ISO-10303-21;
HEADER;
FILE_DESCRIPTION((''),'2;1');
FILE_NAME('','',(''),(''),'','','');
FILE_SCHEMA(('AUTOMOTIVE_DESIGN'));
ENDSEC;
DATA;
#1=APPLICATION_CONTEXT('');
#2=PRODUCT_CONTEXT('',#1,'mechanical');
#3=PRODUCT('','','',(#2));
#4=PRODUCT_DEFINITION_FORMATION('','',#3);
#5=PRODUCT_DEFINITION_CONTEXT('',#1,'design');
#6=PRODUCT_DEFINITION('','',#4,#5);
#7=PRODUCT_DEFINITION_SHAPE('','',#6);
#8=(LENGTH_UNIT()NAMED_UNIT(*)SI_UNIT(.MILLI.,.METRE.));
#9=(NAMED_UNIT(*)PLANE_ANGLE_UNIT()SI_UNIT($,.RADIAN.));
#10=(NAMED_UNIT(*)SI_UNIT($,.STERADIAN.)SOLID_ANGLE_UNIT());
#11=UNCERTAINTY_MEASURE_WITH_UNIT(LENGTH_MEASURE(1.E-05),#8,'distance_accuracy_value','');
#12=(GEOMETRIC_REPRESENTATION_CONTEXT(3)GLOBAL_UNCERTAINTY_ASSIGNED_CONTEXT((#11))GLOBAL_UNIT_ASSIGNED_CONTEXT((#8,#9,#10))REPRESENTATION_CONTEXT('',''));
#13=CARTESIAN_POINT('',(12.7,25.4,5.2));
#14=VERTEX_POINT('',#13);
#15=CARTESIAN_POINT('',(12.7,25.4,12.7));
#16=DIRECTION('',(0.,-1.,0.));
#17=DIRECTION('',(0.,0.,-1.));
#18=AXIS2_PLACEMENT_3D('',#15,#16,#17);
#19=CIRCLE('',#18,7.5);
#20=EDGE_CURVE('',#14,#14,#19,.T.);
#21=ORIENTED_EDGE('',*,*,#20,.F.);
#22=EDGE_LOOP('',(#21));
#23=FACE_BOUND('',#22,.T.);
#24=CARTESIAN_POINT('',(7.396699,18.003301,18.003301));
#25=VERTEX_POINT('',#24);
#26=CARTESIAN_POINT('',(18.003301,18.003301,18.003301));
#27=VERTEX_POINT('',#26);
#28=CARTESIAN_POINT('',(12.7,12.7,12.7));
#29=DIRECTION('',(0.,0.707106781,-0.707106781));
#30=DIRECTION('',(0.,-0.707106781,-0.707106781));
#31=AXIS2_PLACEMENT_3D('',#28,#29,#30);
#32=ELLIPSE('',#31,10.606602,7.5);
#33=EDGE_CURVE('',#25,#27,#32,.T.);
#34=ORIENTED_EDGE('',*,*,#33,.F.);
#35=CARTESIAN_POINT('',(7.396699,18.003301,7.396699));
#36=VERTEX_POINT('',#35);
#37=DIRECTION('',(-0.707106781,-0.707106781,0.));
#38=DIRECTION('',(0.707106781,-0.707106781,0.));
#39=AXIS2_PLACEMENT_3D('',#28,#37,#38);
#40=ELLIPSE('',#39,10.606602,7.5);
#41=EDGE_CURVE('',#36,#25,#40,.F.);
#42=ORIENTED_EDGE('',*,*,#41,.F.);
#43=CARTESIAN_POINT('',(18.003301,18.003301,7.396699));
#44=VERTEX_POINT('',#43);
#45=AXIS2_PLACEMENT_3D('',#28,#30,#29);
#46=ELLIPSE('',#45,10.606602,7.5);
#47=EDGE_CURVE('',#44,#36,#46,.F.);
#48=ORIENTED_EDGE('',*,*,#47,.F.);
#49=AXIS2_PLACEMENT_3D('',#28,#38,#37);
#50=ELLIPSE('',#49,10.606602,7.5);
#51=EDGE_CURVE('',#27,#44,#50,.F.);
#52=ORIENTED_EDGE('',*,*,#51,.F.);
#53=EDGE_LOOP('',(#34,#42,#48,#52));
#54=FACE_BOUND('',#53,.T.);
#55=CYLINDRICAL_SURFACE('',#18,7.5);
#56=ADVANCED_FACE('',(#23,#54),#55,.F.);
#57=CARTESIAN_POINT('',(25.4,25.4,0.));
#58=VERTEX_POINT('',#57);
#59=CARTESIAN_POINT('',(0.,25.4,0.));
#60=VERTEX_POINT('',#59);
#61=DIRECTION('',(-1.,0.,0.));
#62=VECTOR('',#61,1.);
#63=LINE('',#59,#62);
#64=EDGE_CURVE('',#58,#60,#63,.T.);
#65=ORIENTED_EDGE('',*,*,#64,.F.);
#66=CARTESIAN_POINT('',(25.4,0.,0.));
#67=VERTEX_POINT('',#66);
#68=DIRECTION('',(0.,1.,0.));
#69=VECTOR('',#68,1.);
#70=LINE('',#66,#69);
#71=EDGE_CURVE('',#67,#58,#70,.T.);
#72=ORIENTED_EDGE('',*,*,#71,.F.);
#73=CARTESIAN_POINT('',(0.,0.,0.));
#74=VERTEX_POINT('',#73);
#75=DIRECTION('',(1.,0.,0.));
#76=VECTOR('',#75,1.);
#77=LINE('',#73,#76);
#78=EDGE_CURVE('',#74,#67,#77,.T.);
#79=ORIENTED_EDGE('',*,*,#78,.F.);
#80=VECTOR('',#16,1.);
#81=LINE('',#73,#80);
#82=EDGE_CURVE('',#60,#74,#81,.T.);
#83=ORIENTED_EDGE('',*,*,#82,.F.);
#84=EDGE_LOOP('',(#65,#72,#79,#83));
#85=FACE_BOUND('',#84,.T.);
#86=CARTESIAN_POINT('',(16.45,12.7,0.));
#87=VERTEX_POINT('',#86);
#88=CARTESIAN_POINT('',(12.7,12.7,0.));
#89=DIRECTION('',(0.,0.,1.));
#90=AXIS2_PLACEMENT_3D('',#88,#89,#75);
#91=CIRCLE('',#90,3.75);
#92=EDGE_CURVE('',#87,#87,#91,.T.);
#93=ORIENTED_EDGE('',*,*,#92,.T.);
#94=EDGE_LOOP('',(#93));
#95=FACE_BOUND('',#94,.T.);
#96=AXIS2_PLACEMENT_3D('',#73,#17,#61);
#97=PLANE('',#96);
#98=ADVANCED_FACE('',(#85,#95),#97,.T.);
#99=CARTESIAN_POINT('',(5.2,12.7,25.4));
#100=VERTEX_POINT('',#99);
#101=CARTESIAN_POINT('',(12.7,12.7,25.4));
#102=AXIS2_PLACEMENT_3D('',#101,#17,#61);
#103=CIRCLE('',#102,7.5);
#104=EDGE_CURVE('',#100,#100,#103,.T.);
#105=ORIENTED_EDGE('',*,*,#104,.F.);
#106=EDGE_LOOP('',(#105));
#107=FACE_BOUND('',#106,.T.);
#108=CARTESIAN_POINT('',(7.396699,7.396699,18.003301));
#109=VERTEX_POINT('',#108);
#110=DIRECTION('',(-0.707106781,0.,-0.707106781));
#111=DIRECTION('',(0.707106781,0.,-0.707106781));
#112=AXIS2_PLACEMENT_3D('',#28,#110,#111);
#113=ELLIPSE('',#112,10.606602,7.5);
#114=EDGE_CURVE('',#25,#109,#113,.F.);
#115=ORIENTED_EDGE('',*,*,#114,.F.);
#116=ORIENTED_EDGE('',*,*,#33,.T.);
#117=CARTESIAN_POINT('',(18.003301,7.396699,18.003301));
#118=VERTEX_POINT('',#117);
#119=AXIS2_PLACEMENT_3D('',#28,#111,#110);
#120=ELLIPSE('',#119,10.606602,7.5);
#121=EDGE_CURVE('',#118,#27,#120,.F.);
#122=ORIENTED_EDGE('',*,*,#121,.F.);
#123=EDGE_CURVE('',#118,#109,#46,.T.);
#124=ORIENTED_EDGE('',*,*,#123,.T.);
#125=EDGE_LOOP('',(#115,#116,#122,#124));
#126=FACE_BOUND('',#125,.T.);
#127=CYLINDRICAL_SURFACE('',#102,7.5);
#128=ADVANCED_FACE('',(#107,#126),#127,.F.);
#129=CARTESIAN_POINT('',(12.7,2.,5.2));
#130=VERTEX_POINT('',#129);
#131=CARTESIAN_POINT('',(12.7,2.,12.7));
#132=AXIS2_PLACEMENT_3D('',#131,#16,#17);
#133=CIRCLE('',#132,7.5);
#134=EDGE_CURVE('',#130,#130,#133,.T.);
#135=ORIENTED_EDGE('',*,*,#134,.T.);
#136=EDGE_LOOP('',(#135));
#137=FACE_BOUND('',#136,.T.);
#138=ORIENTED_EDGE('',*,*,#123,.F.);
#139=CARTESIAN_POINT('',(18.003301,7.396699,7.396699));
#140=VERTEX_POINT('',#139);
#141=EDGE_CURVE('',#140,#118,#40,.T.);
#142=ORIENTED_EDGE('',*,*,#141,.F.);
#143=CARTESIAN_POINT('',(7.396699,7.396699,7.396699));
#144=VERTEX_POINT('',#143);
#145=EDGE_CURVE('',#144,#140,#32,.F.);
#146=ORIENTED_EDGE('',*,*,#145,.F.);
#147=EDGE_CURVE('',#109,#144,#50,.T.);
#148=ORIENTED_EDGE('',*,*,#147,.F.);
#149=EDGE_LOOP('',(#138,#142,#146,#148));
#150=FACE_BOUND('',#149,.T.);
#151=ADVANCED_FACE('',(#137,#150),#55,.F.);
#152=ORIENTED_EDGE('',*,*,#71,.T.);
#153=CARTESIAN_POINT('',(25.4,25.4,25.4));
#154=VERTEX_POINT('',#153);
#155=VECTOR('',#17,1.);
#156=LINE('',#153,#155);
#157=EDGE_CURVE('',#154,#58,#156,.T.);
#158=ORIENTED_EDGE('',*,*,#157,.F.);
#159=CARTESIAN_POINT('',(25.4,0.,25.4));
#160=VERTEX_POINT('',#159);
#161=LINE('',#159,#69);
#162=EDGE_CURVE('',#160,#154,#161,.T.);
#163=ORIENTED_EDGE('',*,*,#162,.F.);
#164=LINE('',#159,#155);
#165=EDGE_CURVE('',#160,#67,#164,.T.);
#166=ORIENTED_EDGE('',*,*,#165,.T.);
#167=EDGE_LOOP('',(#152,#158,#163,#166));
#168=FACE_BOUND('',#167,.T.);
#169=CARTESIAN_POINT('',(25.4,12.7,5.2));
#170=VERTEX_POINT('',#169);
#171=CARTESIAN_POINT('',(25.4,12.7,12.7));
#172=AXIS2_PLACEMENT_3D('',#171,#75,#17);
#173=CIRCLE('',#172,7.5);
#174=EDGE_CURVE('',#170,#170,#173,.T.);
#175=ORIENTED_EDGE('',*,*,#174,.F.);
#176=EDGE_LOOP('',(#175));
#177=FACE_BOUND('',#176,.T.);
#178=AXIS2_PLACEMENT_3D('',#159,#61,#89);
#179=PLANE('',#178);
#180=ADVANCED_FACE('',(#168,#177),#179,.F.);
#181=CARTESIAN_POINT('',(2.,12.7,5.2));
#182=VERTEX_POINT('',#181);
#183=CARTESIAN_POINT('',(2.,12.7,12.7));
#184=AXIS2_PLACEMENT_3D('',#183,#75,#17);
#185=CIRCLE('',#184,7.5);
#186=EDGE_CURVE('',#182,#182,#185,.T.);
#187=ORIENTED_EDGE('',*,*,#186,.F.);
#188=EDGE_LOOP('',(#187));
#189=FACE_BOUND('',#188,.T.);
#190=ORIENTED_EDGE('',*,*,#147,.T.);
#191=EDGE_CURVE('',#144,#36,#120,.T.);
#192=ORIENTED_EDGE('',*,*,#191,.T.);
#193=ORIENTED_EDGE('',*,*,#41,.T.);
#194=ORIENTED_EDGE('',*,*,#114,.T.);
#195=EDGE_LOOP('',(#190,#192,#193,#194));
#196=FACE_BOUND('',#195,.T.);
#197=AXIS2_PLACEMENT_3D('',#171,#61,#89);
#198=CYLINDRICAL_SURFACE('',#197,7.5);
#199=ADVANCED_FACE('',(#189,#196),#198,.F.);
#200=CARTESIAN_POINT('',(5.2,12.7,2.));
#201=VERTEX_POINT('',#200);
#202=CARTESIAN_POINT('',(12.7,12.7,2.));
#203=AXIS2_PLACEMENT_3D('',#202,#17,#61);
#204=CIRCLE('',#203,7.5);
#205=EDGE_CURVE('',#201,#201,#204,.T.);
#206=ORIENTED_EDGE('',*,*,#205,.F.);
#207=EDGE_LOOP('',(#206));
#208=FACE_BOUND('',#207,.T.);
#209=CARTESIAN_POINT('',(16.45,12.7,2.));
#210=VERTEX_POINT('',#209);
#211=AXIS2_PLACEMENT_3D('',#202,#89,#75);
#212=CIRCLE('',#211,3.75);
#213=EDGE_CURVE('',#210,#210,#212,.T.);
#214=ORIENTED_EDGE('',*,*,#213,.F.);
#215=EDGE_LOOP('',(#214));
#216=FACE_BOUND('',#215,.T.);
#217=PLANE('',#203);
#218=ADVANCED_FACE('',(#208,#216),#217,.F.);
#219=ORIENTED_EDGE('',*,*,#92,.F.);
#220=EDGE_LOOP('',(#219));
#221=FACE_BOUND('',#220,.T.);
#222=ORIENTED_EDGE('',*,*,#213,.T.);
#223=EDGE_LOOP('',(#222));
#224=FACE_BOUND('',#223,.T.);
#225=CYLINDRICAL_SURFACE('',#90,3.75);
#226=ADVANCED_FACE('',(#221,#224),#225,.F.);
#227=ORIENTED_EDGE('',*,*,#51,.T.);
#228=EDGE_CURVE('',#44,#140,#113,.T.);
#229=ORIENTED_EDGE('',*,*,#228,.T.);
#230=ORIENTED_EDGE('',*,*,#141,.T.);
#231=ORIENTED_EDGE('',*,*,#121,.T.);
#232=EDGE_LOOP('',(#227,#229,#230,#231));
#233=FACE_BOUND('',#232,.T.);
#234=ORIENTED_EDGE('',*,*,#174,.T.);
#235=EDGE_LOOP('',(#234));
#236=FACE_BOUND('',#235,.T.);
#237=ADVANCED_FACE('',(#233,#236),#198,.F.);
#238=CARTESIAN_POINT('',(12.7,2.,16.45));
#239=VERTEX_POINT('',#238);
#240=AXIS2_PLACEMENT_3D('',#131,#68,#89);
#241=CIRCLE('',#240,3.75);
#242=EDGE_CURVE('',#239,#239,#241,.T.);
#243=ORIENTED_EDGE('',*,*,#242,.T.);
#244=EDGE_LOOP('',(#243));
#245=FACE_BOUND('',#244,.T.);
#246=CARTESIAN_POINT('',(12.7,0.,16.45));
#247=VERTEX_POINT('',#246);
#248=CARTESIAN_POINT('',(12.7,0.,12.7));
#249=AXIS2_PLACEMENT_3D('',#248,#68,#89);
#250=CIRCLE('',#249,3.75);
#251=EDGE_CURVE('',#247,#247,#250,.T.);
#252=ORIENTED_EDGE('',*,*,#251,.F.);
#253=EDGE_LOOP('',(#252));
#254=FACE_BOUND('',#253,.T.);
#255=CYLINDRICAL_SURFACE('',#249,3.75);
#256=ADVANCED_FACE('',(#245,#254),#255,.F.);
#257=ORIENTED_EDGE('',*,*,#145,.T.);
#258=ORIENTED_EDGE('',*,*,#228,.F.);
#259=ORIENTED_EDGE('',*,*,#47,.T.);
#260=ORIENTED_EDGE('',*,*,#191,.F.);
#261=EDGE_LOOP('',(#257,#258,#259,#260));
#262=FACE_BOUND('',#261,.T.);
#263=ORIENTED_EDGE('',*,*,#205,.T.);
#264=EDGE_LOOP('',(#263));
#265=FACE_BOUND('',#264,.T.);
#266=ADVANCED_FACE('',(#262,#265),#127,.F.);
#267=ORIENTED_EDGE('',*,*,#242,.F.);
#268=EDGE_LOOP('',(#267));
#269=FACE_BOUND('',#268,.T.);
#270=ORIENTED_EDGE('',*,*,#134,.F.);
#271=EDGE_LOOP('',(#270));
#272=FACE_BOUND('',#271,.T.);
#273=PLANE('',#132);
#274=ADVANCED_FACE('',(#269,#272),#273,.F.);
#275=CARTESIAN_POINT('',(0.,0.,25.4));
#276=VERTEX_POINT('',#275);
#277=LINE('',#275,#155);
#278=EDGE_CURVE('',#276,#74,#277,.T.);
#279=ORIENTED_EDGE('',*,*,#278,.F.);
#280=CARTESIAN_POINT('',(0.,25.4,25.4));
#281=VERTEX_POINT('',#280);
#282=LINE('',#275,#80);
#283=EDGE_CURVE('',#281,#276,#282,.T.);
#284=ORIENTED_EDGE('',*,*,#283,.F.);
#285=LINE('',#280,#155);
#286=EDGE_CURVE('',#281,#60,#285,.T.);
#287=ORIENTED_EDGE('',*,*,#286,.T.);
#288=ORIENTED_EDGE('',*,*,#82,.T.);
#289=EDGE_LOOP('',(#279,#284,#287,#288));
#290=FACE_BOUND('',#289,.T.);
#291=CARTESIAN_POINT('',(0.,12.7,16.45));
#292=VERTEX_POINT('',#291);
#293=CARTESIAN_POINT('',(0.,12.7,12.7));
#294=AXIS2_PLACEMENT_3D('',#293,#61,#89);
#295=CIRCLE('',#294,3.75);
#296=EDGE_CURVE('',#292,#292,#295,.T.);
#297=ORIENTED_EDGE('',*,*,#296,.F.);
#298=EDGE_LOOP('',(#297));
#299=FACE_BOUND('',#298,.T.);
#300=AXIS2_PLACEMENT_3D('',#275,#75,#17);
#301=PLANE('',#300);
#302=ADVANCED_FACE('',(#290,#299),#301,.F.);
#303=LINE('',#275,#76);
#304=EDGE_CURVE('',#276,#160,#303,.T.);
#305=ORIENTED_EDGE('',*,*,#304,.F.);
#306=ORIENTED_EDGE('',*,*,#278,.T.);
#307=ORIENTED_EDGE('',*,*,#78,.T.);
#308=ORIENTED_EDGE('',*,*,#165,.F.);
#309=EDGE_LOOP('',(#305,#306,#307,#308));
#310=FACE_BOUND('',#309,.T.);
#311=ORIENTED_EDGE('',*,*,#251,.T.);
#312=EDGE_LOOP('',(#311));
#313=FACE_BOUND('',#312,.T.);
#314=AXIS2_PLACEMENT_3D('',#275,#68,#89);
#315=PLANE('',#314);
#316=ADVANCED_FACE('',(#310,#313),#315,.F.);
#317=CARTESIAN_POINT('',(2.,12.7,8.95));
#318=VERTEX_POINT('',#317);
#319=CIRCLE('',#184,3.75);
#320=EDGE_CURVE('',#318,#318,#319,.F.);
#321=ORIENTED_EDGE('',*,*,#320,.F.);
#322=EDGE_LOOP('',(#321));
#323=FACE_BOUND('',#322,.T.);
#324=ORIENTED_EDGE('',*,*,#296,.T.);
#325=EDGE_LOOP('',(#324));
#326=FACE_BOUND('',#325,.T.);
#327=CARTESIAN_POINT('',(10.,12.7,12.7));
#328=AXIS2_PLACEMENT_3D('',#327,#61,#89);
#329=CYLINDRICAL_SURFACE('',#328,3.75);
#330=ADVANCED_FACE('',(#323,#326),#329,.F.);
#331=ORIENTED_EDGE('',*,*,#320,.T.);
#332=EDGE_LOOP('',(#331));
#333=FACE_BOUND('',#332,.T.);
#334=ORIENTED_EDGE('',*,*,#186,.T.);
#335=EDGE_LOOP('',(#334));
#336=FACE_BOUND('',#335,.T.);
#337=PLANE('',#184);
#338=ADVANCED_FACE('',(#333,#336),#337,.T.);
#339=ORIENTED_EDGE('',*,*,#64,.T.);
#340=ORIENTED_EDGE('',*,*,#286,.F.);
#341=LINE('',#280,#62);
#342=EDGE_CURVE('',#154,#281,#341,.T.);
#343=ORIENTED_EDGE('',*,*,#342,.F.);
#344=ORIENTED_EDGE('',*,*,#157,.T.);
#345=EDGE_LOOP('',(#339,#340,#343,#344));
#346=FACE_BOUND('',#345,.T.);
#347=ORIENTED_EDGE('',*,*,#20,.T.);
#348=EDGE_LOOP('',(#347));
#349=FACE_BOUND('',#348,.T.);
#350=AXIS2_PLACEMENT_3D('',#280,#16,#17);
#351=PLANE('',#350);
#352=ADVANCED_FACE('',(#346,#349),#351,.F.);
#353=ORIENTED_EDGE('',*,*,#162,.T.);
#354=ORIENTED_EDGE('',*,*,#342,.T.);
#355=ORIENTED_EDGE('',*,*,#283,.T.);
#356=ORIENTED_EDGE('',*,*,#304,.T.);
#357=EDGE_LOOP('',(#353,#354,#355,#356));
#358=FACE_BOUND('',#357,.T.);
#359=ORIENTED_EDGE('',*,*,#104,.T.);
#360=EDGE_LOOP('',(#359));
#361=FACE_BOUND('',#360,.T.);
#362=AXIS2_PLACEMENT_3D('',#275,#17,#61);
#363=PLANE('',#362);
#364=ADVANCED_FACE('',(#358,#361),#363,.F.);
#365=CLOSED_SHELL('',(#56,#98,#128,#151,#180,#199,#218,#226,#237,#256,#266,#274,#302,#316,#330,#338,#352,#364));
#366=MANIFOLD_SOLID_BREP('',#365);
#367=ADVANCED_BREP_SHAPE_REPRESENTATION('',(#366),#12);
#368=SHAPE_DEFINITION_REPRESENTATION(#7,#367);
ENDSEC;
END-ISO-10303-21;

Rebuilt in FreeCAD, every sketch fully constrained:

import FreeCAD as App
import Part
import Sketcher

V = App.Vector
Q = App.Units.Quantity

doc = App.newDocument("Part")
params = doc.addObject("Spreadsheet::Sheet", "Params")
for row, (alias, value) in enumerate([
    ("sketch1_width", "25.4 mm"),
    ("pad1_length", "25.4 mm"),
    ("sketch2_diameter", "15 mm"),
    ("sketch3_diameter", "15 mm"),
    ("sketch4_diameter", "7.5 mm"),
    ("sketch5_diameter", "7.5 mm"),
    ("sketch6_diameter", "7.5 mm"),
    ("pocket5_length", "10 mm"),
    ("sketch7_diameter", "15 mm"),
], start=1):
    params.set(f"A{row}", alias)
    params.set(f"B{row}", "=" + value)
    params.setAlias(f"B{row}", alias)

body = doc.addObject("PartDesign::Body", "Body")

# Sketch on XY plane
sketch1 = body.newObject("Sketcher::SketchObject", "Sketch")
sketch1.AttachmentSupport = (doc.getObject("XY_Plane"), [""])
sketch1.MapMode = "FlatFace"
sketch1.addGeometry(Part.LineSegment(V(0, 25.4, 0), V(0, 0, 0)), False)
sketch1.addGeometry(Part.LineSegment(V(0, 0, 0), V(25.4, 0, 0)), False)
sketch1.addGeometry(Part.LineSegment(V(25.4, 0, 0), V(25.4, 25.4, 0)), False)
sketch1.addGeometry(Part.LineSegment(V(25.4, 25.4, 0), V(0, 25.4, 0)), False)
sketch1.addConstraint(Sketcher.Constraint("Coincident", 0, 2, 1, 1))
sketch1.addConstraint(Sketcher.Constraint("Coincident", 1, 2, 2, 1))
sketch1.addConstraint(Sketcher.Constraint("Coincident", 2, 2, 3, 1))
sketch1.addConstraint(Sketcher.Constraint("Coincident", 3, 2, 0, 1))
sketch1.addConstraint(Sketcher.Constraint("Vertical", 0))
sketch1.addConstraint(Sketcher.Constraint("Horizontal", 1))
sketch1.addConstraint(Sketcher.Constraint("Vertical", 2))
sketch1.addConstraint(Sketcher.Constraint("Horizontal", 3))
sketch1.addConstraint(Sketcher.Constraint("Coincident", 0, 2, -1, 1))
sketch1.addConstraint(Sketcher.Constraint("Equal", 3, 0))
sketch1.addConstraint(Sketcher.Constraint("DistanceX", 1, 1, 1, 2, Q("25.4 mm")))
sketch1.setExpression("Constraints[10]", "Params.sketch1_width")
pad1 = body.newObject("PartDesign::Pad", "Pad")
pad1.Profile = sketch1
pad1.setExpression("Length", "Params.pad1_length")

# Sketch on XY plane
sketch2 = body.newObject("Sketcher::SketchObject", "Sketch001")
sketch2.AttachmentSupport = (doc.getObject("XY_Plane"), [""])
sketch2.MapMode = "FlatFace"
sketch2.AttachmentOffset = App.Placement(V(0, 0, 2), App.Rotation())
sketch2.addGeometry(Part.Circle(V(12.7, 12.7, 0), V(0, 0, 1), 7.5), False)
sketch2.addConstraint(Sketcher.Constraint("Diameter", 0, Q("15 mm")))
sketch2.addConstraint(Sketcher.Constraint("DistanceX", -1, 1, 0, 3, Q("12.7 mm")))
sketch2.addConstraint(Sketcher.Constraint("DistanceY", -1, 1, 0, 3, Q("12.7 mm")))
sketch2.setExpression("Constraints[0]", "Params.sketch2_diameter")
pocket1 = body.newObject("PartDesign::Pocket", "Pocket")
pocket1.Profile = sketch2
pocket1.Type = "ThroughAll"
pocket1.Reversed = True

# Sketch on XZ plane
sketch3 = body.newObject("Sketcher::SketchObject", "Sketch002")
sketch3.AttachmentSupport = (doc.getObject("XZ_Plane"), [""])
sketch3.MapMode = "FlatFace"
sketch3.AttachmentOffset = App.Placement(V(0, 0, -2), App.Rotation())
sketch3.addGeometry(Part.Circle(V(12.7, 12.7, 0), V(0, 0, 1), 7.5), False)
sketch3.addConstraint(Sketcher.Constraint("Diameter", 0, Q("15 mm")))
sketch3.addConstraint(Sketcher.Constraint("DistanceX", -1, 1, 0, 3, Q("12.7 mm")))
sketch3.addConstraint(Sketcher.Constraint("DistanceY", -1, 1, 0, 3, Q("12.7 mm")))
sketch3.setExpression("Constraints[0]", "Params.sketch3_diameter")
pocket2 = body.newObject("PartDesign::Pocket", "Pocket001")
pocket2.Profile = sketch3
pocket2.Type = "ThroughAll"

# Sketch on XZ plane
sketch4 = body.newObject("Sketcher::SketchObject", "Sketch003")
sketch4.AttachmentSupport = (doc.getObject("XZ_Plane"), [""])
sketch4.MapMode = "FlatFace"
sketch4.AttachmentOffset = App.Placement(V(0, 0, -2), App.Rotation())
sketch4.addGeometry(Part.Circle(V(12.7, 12.7, 0), V(0, 0, 1), 3.75), False)
sketch4.addConstraint(Sketcher.Constraint("Diameter", 0, Q("7.5 mm")))
sketch4.addConstraint(Sketcher.Constraint("DistanceX", -1, 1, 0, 3, Q("12.7 mm")))
sketch4.addConstraint(Sketcher.Constraint("DistanceY", -1, 1, 0, 3, Q("12.7 mm")))
sketch4.setExpression("Constraints[0]", "Params.sketch4_diameter")
pocket3 = body.newObject("PartDesign::Pocket", "Pocket002")
pocket3.Profile = sketch4
pocket3.Type = "ThroughAll"
pocket3.Reversed = True

# Sketch on XY plane
sketch5 = body.newObject("Sketcher::SketchObject", "Sketch004")
sketch5.AttachmentSupport = (doc.getObject("XY_Plane"), [""])
sketch5.MapMode = "FlatFace"
sketch5.AttachmentOffset = App.Placement(V(0, 0, 2), App.Rotation())
sketch5.addGeometry(Part.Circle(V(12.7, 12.7, 0), V(0, 0, 1), 3.75), False)
sketch5.addConstraint(Sketcher.Constraint("Diameter", 0, Q("7.5 mm")))
sketch5.addConstraint(Sketcher.Constraint("DistanceX", -1, 1, 0, 3, Q("12.7 mm")))
sketch5.addConstraint(Sketcher.Constraint("DistanceY", -1, 1, 0, 3, Q("12.7 mm")))
sketch5.setExpression("Constraints[0]", "Params.sketch5_diameter")
pocket4 = body.newObject("PartDesign::Pocket", "Pocket003")
pocket4.Profile = sketch5
pocket4.Type = "ThroughAll"

# Sketch on YZ plane
sketch6 = body.newObject("Sketcher::SketchObject", "Sketch005")
sketch6.AttachmentSupport = (doc.getObject("YZ_Plane"), [""])
sketch6.MapMode = "FlatFace"
sketch6.addGeometry(Part.Circle(V(12.7, 12.7, 0), V(0, 0, 1), 3.75), False)
sketch6.addConstraint(Sketcher.Constraint("Diameter", 0, Q("7.5 mm")))
sketch6.addConstraint(Sketcher.Constraint("DistanceX", -1, 1, 0, 3, Q("12.7 mm")))
sketch6.addConstraint(Sketcher.Constraint("DistanceY", -1, 1, 0, 3, Q("12.7 mm")))
sketch6.setExpression("Constraints[0]", "Params.sketch6_diameter")
pocket5 = body.newObject("PartDesign::Pocket", "Pocket004")
pocket5.Profile = sketch6
pocket5.setExpression("Length", "Params.pocket5_length")
pocket5.Reversed = True

# Sketch on YZ plane
sketch7 = body.newObject("Sketcher::SketchObject", "Sketch006")
sketch7.AttachmentSupport = (doc.getObject("YZ_Plane"), [""])
sketch7.MapMode = "FlatFace"
sketch7.AttachmentOffset = App.Placement(V(0, 0, 2), App.Rotation())
sketch7.addGeometry(Part.Circle(V(12.7, 12.7, 0), V(0, 0, 1), 7.5), False)
sketch7.addConstraint(Sketcher.Constraint("Diameter", 0, Q("15 mm")))
sketch7.addConstraint(Sketcher.Constraint("DistanceX", -1, 1, 0, 3, Q("12.7 mm")))
sketch7.addConstraint(Sketcher.Constraint("DistanceY", -1, 1, 0, 3, Q("12.7 mm")))
sketch7.setExpression("Constraints[0]", "Params.sketch7_diameter")
pocket6 = body.newObject("PartDesign::Pocket", "Pocket005")
pocket6.Profile = sketch7
pocket6.Type = "ThroughAll"
pocket6.Reversed = True

doc.recompute()
